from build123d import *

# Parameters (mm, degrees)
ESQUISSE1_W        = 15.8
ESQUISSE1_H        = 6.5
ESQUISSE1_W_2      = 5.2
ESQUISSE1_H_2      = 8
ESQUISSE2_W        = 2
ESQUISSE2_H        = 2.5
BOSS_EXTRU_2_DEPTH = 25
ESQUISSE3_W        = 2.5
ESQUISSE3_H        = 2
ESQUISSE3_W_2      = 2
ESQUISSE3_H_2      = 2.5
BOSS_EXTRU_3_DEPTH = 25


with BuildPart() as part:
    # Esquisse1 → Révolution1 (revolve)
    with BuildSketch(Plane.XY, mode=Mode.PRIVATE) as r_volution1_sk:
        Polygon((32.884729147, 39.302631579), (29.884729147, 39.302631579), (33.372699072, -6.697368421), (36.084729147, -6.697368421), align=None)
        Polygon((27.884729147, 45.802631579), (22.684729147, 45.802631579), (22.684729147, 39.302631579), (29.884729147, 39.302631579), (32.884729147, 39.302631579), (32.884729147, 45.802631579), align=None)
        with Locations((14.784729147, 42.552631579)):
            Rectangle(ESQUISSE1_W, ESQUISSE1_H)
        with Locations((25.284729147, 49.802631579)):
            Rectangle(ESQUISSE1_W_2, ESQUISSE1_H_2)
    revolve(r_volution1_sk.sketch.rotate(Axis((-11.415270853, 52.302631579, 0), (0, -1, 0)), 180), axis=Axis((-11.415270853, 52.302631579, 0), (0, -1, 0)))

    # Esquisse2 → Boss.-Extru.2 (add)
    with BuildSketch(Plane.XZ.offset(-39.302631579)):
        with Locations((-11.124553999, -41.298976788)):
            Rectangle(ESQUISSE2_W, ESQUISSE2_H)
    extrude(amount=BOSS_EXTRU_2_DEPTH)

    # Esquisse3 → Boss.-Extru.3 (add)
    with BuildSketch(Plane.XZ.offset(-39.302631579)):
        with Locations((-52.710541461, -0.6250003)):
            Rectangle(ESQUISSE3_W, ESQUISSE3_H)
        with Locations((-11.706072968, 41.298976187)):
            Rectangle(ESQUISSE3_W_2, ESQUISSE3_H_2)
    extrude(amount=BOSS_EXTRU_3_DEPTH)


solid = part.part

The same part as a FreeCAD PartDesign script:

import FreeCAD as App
import Part
import Sketcher

V = App.Vector

doc = App.newDocument("Part")
body = doc.addObject("PartDesign::Body", "Body")

# Sketch on XY plane
sketch1 = body.newObject("Sketcher::SketchObject", "Sketch")
sketch1.AttachmentSupport = (doc.getObject("XY_Plane"), [""])
sketch1.MapMode = "FlatFace"
sketch1.addGeometry([
    Part.LineSegment(V(29.9, 39.3, 0), V(33.4, -6.7, 0)),  # 0
    Part.LineSegment(V(33.4, -6.7, 0), V(36.1, -6.7, 0)),  # 1
    Part.LineSegment(V(36.1, -6.7, 0), V(32.9, 39.3, 0)),  # 2
    Part.LineSegment(V(32.9, 39.3, 0), V(32.9, 45.8, 0)),  # 3
    Part.LineSegment(V(32.9, 45.8, 0), V(27.9, 45.8, 0)),  # 4
    Part.LineSegment(V(27.9, 45.8, 0), V(27.9, 53.8, 0)),  # 5
    Part.LineSegment(V(27.9, 53.8, 0), V(22.7, 53.8, 0)),  # 6
    Part.LineSegment(V(22.7, 53.8, 0), V(22.7, 45.8, 0)),  # 7
    Part.LineSegment(V(22.7, 45.8, 0), V(6.9, 45.8, 0)),  # 8
    Part.LineSegment(V(6.9, 45.8, 0), V(6.9, 39.3, 0)),  # 9
    Part.LineSegment(V(6.9, 39.3, 0), V(29.9, 39.3, 0)),  # 10
], False)
sketch1.addGeometry(Part.LineSegment(V(-11.4, 53.8, 0), V(-11.4, -6.7, 0)), True)  # axis
sketch1.addConstraint([
    Sketcher.Constraint("Coincident", 0, 2, 1, 1),
    Sketcher.Constraint("Coincident", 1, 2, 2, 1),
    Sketcher.Constraint("Coincident", 2, 2, 3, 1),
    Sketcher.Constraint("Coincident", 3, 2, 4, 1),
    Sketcher.Constraint("Coincident", 4, 2, 5, 1),
    Sketcher.Constraint("Coincident", 5, 2, 6, 1),
    Sketcher.Constraint("Coincident", 6, 2, 7, 1),
    Sketcher.Constraint("Coincident", 7, 2, 8, 1),
    Sketcher.Constraint("Coincident", 8, 2, 9, 1),
    Sketcher.Constraint("Coincident", 9, 2, 10, 1),
    Sketcher.Constraint("Coincident", 10, 2, 0, 1),
    Sketcher.Constraint("Horizontal", 1),
    Sketcher.Constraint("Vertical", 3),
    Sketcher.Constraint("Horizontal", 4),
    Sketcher.Constraint("Vertical", 5),
    Sketcher.Constraint("Horizontal", 6),
    Sketcher.Constraint("Vertical", 7),
    Sketcher.Constraint("Horizontal", 8),
    Sketcher.Constraint("Vertical", 9),
    Sketcher.Constraint("Horizontal", 10),
    Sketcher.Constraint("Vertical", 11),
    Sketcher.Constraint("Horizontal", 4, 2, 7, 2),
    Sketcher.Constraint("Horizontal", 2, 2, 9, 2),
    Sketcher.Constraint("Horizontal", 6, 2, 11, 1),
    Sketcher.Constraint("Horizontal", 1, 2, 11, 2),
    Sketcher.Constraint("DistanceX", 4, 2, 4, 1, 5.0),
    Sketcher.Constraint("DistanceX", 10, 1, 10, 2, 23.0),
    Sketcher.Constraint("DistanceY", 5, 1, 5, 2, 8.0),
    Sketcher.Constraint("DistanceX", 6, 2, 6, 1, 5.2),
    Sketcher.Constraint("DistanceX", 8, 2, 8, 1, 15.8),
    Sketcher.Constraint("DistanceY", 3, 1, 3, 2, 6.5),
    Sketcher.Constraint("DistanceY", 11, 2, 11, 1, 60.5),
    Sketcher.Constraint("DistanceX", 2, 2, 1, 2, 3.2),
    Sketcher.Constraint("DistanceX", 11, 1, 8, 2, 18.3),
    Sketcher.Constraint("DistanceX", 1, 1, 1, 2, 2.71203),
    Sketcher.Constraint("DistanceX", -1, 1, 0, 2, 33.372699),
    Sketcher.Constraint("DistanceY", 0, 2, -1, 1, 6.697368),
])
revolution = body.newObject("PartDesign::Revolution", "Revolution")
revolution.Profile = sketch1
revolution.ReferenceAxis = (sketch1, ["Axis0"])
revolution.Angle = 360

# Sketch on XZ plane
sketch2 = body.newObject("Sketcher::SketchObject", "Sketch001")
sketch2.AttachmentSupport = (doc.getObject("XZ_Plane"), [""])
sketch2.MapMode = "FlatFace"
sketch2.AttachmentOffset = App.Placement(V(0, 0, -39.302632), App.Rotation())
sketch2.addGeometry([
    Part.LineSegment(V(-12.1, -40, 0), V(-12.1, -42.5, 0)),
    Part.LineSegment(V(-12.1, -42.5, 0), V(-10.1, -42.5, 0)),
    Part.LineSegment(V(-10.1, -42.5, 0), V(-10.1, -40, 0)),
    Part.LineSegment(V(-10.1, -40, 0), V(-12.1, -40, 0)),
], False)
sketch2.addConstraint([
    Sketcher.Constraint("Coincident", 0, 2, 1, 1),
    Sketcher.Constraint("Coincident", 1, 2, 2, 1),
    Sketcher.Constraint("Coincident", 2, 2, 3, 1),
    Sketcher.Constraint("Coincident", 3, 2, 0, 1),
    Sketcher.Constraint("Vertical", 0),
    Sketcher.Constraint("Horizontal", 1),
    Sketcher.Constraint("Vertical", 2),
    Sketcher.Constraint("Horizontal", 3),
    Sketcher.Constraint("DistanceX", 1, 1, 1, 2, 2.0),
    Sketcher.Constraint("DistanceY", 0, 2, 0, 1, 2.5),
    Sketcher.Constraint("DistanceX", 0, 2, -1, 1, 12.124554),
    Sketcher.Constraint("DistanceY", 0, 2, -1, 1, 42.548977),
])
pad1 = body.newObject("PartDesign::Pad", "Pad")
pad1.Profile = sketch2
pad1.Length = 25

# Sketch on XZ plane
sketch3 = body.newObject("Sketcher::SketchObject", "Sketch002")
sketch3.AttachmentSupport = (doc.getObject("XZ_Plane"), [""])
sketch3.MapMode = "FlatFace"
sketch3.AttachmentOffset = App.Placement(V(0, 0, -39.302632), App.Rotation())
sketch3.addGeometry([
    Part.LineSegment(V(-54, 0.4, 0), V(-54, -1.6, 0)),  # 0
    Part.LineSegment(V(-54, -1.6, 0), V(-51.5, -1.6, 0)),  # 1
    Part.LineSegment(V(-51.5, -1.6, 0), V(-51.5, 0.4, 0)),  # 2
    Part.LineSegment(V(-51.5, 0.4, 0), V(-54, 0.4, 0)),  # 3
    Part.LineSegment(V(-12.7, 42.5, 0), V(-12.7, 40, 0)),  # 4
    Part.LineSegment(V(-12.7, 40, 0), V(-10.7, 40, 0)),  # 5
    Part.LineSegment(V(-10.7, 40, 0), V(-10.7, 42.5, 0)),  # 6
    Part.LineSegment(V(-10.7, 42.5, 0), V(-12.7, 42.5, 0)),  # 7
], False)
sketch3.addConstraint([
    Sketcher.Constraint("Coincident", 0, 2, 1, 1),
    Sketcher.Constraint("Coincident", 1, 2, 2, 1),
    Sketcher.Constraint("Coincident", 2, 2, 3, 1),
    Sketcher.Constraint("Coincident", 3, 2, 0, 1),
    Sketcher.Constraint("Coincident", 4, 2, 5, 1),
    Sketcher.Constraint("Coincident", 5, 2, 6, 1),
    Sketcher.Constraint("Coincident", 6, 2, 7, 1),
    Sketcher.Constraint("Coincident", 7, 2, 4, 1),
    Sketcher.Constraint("Vertical", 0),
    Sketcher.Constraint("Horizontal", 1),
    Sketcher.Constraint("Vertical", 2),
    Sketcher.Constraint("Horizontal", 3),
    Sketcher.Constraint("Vertical", 4),
    Sketcher.Constraint("Horizontal", 5),
    Sketcher.Constraint("Vertical", 6),
    Sketcher.Constraint("Horizontal", 7),
    Sketcher.Constraint("Equal", 7, 0),
    Sketcher.Constraint("Equal", 3, 4),
    Sketcher.Constraint("DistanceX", 5, 1, 5, 2, 2.0),
    Sketcher.Constraint("DistanceX", 1, 1, 1, 2, 2.5),
    Sketcher.Constraint("DistanceY", 0, 2, -1, 1, 1.625),
    Sketcher.Constraint("DistanceX", 0, 2, -1, 1, 53.960541),
    Sketcher.Constraint("DistanceX", 2, 2, 4, 2, 38.754468),
    Sketcher.Constraint("DistanceY", -1, 1, 4, 2, 40.048976),
])
pad2 = body.newObject("PartDesign::Pad", "Pad001")
pad2.Profile = sketch3
pad2.Length = 25

doc.recompute()
